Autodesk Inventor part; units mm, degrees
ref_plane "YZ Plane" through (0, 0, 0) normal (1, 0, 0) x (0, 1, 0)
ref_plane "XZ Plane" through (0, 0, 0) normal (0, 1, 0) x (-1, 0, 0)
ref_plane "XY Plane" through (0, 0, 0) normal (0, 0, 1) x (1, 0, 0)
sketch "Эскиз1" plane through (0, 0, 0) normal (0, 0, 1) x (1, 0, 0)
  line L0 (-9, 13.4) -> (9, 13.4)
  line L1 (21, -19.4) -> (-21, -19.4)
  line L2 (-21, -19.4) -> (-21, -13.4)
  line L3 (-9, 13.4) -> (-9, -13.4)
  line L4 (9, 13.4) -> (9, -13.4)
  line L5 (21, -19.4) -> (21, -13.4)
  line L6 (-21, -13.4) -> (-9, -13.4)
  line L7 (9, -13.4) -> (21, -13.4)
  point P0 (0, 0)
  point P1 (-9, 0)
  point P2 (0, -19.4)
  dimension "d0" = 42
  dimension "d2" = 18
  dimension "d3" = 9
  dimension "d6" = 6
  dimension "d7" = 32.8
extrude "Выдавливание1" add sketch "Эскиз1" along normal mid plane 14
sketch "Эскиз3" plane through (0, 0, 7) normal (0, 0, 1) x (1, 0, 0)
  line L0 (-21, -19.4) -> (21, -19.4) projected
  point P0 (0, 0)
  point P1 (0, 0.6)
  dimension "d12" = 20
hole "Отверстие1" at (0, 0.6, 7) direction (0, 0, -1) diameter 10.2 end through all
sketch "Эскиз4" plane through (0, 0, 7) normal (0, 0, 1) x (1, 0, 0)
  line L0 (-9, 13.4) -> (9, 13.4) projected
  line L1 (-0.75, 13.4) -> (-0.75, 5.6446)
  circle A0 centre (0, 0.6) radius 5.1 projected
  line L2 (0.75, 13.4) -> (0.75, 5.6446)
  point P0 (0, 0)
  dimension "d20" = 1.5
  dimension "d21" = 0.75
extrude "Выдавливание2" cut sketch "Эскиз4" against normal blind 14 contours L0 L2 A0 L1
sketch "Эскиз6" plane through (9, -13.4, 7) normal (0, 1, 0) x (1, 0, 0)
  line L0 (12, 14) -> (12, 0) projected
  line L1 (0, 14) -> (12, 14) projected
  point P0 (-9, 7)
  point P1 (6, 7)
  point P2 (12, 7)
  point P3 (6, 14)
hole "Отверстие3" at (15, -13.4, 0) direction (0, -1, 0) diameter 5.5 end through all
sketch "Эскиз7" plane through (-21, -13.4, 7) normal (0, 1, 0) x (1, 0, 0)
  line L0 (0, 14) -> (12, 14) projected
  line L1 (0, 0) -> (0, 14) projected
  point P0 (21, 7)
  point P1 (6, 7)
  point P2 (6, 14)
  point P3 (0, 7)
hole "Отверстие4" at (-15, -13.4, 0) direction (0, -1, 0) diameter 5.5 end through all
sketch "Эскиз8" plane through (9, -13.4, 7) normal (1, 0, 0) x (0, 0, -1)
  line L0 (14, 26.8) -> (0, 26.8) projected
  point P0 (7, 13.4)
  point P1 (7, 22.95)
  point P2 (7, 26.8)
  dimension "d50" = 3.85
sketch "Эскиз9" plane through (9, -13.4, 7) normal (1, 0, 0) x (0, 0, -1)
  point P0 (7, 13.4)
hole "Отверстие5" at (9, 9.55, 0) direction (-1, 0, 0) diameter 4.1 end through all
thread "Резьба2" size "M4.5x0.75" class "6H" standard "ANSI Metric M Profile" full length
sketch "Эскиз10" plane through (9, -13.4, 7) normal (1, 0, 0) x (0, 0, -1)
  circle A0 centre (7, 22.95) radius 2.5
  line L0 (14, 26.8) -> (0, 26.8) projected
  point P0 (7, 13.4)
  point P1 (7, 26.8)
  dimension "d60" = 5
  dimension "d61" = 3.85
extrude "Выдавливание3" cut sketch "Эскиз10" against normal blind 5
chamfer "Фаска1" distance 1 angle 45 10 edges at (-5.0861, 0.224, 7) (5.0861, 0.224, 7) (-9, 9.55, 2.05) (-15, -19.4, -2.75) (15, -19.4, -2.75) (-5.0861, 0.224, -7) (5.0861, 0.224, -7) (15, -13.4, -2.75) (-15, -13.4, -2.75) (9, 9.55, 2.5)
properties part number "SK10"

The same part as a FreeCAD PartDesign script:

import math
import FreeCAD as App
import Part
import Sketcher

V = App.Vector
Q = App.Units.Quantity


def edges_at(feature, points):
    """Names of the edges that pass closest to the given points."""
    edges = feature.Shape.Edges
    near = lambda p: min(range(len(edges)), key=lambda i: edges[i].distToShape(Part.Vertex(*p))[0])
    return sorted({f"Edge{near(p) + 1}" for p in points})


def add_polygon(sketch, points):
    """Adds a closed chain of lines whose ends are joined by coincident constraints."""
    first, n = sketch.GeometryCount, len(points)
    for a, b in zip(points, points[1:] + points[:1]):
        sketch.addGeometry(Part.LineSegment(App.Vector(*a, 0), App.Vector(*b, 0)), False)
    for i in range(n):
        sketch.addConstraint(Sketcher.Constraint("Coincident", first + i, 2, first + (i + 1) % n, 1))

doc = App.newDocument("Part")
params = doc.addObject("Spreadsheet::Sheet", "Params")
for row, (alias, value) in enumerate([
    ("sketch1_width", "18 mm"),
    ("sketch1_width2", "42 mm"),
    ("sketch1_height", "6 mm"),
    ("pad1_length", "14 mm"),
    ("sketch2_diameter", "10.2 mm"),
    ("hole_diameter", "10.2 mm"),
    ("sketch3_width", "1.5 mm"),
    ("sketch3_radius", "5.1 mm"),
    ("pocket1_length", "14 mm"),
    ("sketch4_diameter", "5.5 mm"),
    ("hole2_diameter", "5.5 mm"),
    ("sketch5_diameter", "5.5 mm"),
    ("hole3_diameter", "5.5 mm"),
    ("sketch6_diameter", "4.1 mm"),
    ("hole4_diameter", "4.1 mm"),
    ("sketch7_diameter", "5 mm"),
    ("pocket2_length", "5 mm"),
    ("chamfer_size", "1 mm"),
], start=1):
    params.set(f"A{row}", alias)
    params.set(f"B{row}", "=" + value)
    params.setAlias(f"B{row}", alias)

body = doc.addObject("PartDesign::Body", "Body")

sketch1 = body.newObject("Sketcher::SketchObject", "Sketch")
sketch1.AttachmentSupport = (doc.getObject("XY_Plane"), [""])
sketch1.MapMode = "FlatFace"
add_polygon(sketch1, [(9, 13.4), (-9, 13.4), (-9, -13.4), (-21, -13.4), (-21, -19.4), (21, -19.4), (21, -13.4), (9, -13.4)])
sketch1.addConstraint(Sketcher.Constraint("Horizontal", 0))
sketch1.addConstraint(Sketcher.Constraint("Vertical", 1))
sketch1.addConstraint(Sketcher.Constraint("Horizontal", 2))
sketch1.addConstraint(Sketcher.Constraint("Vertical", 3))
sketch1.addConstraint(Sketcher.Constraint("Horizontal", 4))
sketch1.addConstraint(Sketcher.Constraint("Vertical", 5))
sketch1.addConstraint(Sketcher.Constraint("Horizontal", 6))
sketch1.addConstraint(Sketcher.Constraint("Vertical", 7))
sketch1.addConstraint(Sketcher.Constraint("Symmetric", 0, 2, 6, 2, -1, 1))
sketch1.addConstraint(Sketcher.Constraint("Symmetric", 2, 2, 5, 2, -2))
sketch1.addConstraint(Sketcher.Constraint("DistanceX", 0, 2, 0, 1, Q("18 mm")))
sketch1.addConstraint(Sketcher.Constraint("DistanceX", 4, 1, 4, 2, Q("42 mm")))
sketch1.addConstraint(Sketcher.Constraint("DistanceY", 3, 2, 3, 1, Q("6 mm")))
sketch1.addConstraint(Sketcher.Constraint("DistanceY", 3, 2, 0, 2, Q("32.8 mm")))
sketch1.setExpression("Constraints[18]", "Params.sketch1_width")
sketch1.setExpression("Constraints[19]", "Params.sketch1_width2")
sketch1.setExpression("Constraints[20]", "Params.sketch1_height")
pad1 = body.newObject("PartDesign::Pad", "Pad")
pad1.Profile = sketch1
pad1.setExpression("Length", "Params.pad1_length")
pad1.Midplane = True

sketch2 = body.newObject("Sketcher::SketchObject", "Sketch001")
sketch2.AttachmentSupport = (doc.getObject("XY_Plane"), [""])
sketch2.MapMode = "FlatFace"
sketch2.AttachmentOffset = App.Placement(V(0, 0, 7), App.Rotation())
sketch2.addGeometry(Part.Circle(V(0, 0.6, 0), V(0, 0, 1), 5.1), False)
sketch2.addConstraint(Sketcher.Constraint("PointOnObject", 0, 3, -2))
sketch2.addConstraint(Sketcher.Constraint("Diameter", 0, Q("10.2 mm")))
sketch2.addConstraint(Sketcher.Constraint("DistanceY", -1, 1, 0, 3, Q("0.6 mm")))
sketch2.setExpression("Constraints[1]", "Params.sketch2_diameter")
doc.recompute()
hole = body.newObject("PartDesign::Hole", "Hole")
hole.Profile = sketch2
hole.ThreadType = "None"
hole.setExpression("Diameter", "Params.hole_diameter")
hole.DepthType = "ThroughAll"

sketch3 = body.newObject("Sketcher::SketchObject", "Sketch002")
sketch3.AttachmentSupport = (doc.getObject("XY_Plane"), [""])
sketch3.MapMode = "FlatFace"
sketch3.AttachmentOffset = App.Placement(V(0, 0, 7), App.Rotation())
sketch3.addGeometry(Part.LineSegment(V(0.75, 13.4, 0), V(-0.75, 13.4, 0)), False)
sketch3.addGeometry(Part.LineSegment(V(-0.75, 13.4, 0), V(-0.75, 5.6446, 0)), False)
sketch3.addGeometry(Part.ArcOfCircle(Part.Circle(V(0, 0.6, 0), V(0, 0, 1), 5.1), math.radians(81.543561), math.radians(98.456439)), False)
sketch3.addGeometry(Part.LineSegment(V(0.75, 5.6446, 0), V(0.75, 13.4, 0)), False)
sketch3.addConstraint(Sketcher.Constraint("Coincident", 0, 2, 1, 1))
sketch3.addConstraint(Sketcher.Constraint("Coincident", 1, 2, 2, 2))
sketch3.addConstraint(Sketcher.Constraint("Coincident", 2, 1, 3, 1))
sketch3.addConstraint(Sketcher.Constraint("Coincident", 3, 2, 0, 1))
sketch3.addConstraint(Sketcher.Constraint("Horizontal", 0))
sketch3.addConstraint(Sketcher.Constraint("Vertical", 1))
sketch3.addConstraint(Sketcher.Constraint("Vertical", 3))
sketch3.addConstraint(Sketcher.Constraint("Symmetric", 1, 2, 2, 1, -2))
sketch3.addConstraint(Sketcher.Constraint("DistanceX", 0, 2, 0, 1, Q("1.5 mm")))
sketch3.addConstraint(Sketcher.Constraint("Radius", 2, Q("5.1 mm")))
sketch3.addConstraint(Sketcher.Constraint("DistanceY", -1, 1, 2, 3, Q("0.6 mm")))
sketch3.addConstraint(Sketcher.Constraint("DistanceY", -1, 1, 0, 2, Q("13.4 mm")))
sketch3.setExpression("Constraints[8]", "Params.sketch3_width")
sketch3.setExpression("Constraints[9]", "Params.sketch3_radius")
pocket1 = body.newObject("PartDesign::Pocket", "Pocket")
pocket1.Profile = sketch3
pocket1.setExpression("Length", "Params.pocket1_length")

sketch4 = body.newObject("Sketcher::SketchObject", "Sketch003")
sketch4.AttachmentSupport = (doc.getObject("XZ_Plane"), [""])
sketch4.MapMode = "FlatFace"
sketch4.AttachmentOffset = App.Placement(V(0, 0, 13.4), App.Rotation())
sketch4.addGeometry(Part.Circle(V(15, 0, 0), V(0, 0, 1), 2.75), False)
sketch4.addConstraint(Sketcher.Constraint("PointOnObject", 0, 3, -1))
sketch4.addConstraint(Sketcher.Constraint("Diameter", 0, Q("5.5 mm")))
sketch4.addConstraint(Sketcher.Constraint("DistanceX", -1, 1, 0, 3, Q("15 mm")))
sketch4.setExpression("Constraints[1]", "Params.sketch4_diameter")
doc.recompute()
hole2 = body.newObject("PartDesign::Hole", "Hole001")
hole2.Profile = sketch4
hole2.ThreadType = "None"
hole2.setExpression("Diameter", "Params.hole2_diameter")
hole2.DepthType = "ThroughAll"
hole2.Reversed = True

sketch5 = body.newObject("Sketcher::SketchObject", "Sketch004")
sketch5.AttachmentSupport = (doc.getObject("XZ_Plane"), [""])
sketch5.MapMode = "FlatFace"
sketch5.AttachmentOffset = App.Placement(V(0, 0, 13.4), App.Rotation())
sketch5.addGeometry(Part.Circle(V(-15, 0, 0), V(0, 0, 1), 2.75), False)
sketch5.addConstraint(Sketcher.Constraint("PointOnObject", 0, 3, -1))
sketch5.addConstraint(Sketcher.Constraint("Diameter", 0, Q("5.5 mm")))
sketch5.addConstraint(Sketcher.Constraint("DistanceX", 0, 3, -1, 1, Q("15 mm")))
sketch5.setExpression("Constraints[1]", "Params.sketch5_diameter")
doc.recompute()
hole3 = body.newObject("PartDesign::Hole", "Hole002")
hole3.Profile = sketch5
hole3.ThreadType = "None"
hole3.setExpression("Diameter", "Params.hole3_diameter")
hole3.DepthType = "ThroughAll"
hole3.Reversed = True

sketch6 = body.newObject("Sketcher::SketchObject", "Sketch005")
sketch6.AttachmentSupport = (doc.getObject("YZ_Plane"), [""])
sketch6.MapMode = "FlatFace"
sketch6.AttachmentOffset = App.Placement(V(0, 0, 9), App.Rotation())
sketch6.addGeometry(Part.Circle(V(9.55, 0, 0), V(0, 0, 1), 2.05), False)
sketch6.addConstraint(Sketcher.Constraint("PointOnObject", 0, 3, -1))
sketch6.addConstraint(Sketcher.Constraint("Diameter", 0, Q("4.1 mm")))
sketch6.addConstraint(Sketcher.Constraint("DistanceX", -1, 1, 0, 3, Q("9.55 mm")))
sketch6.setExpression("Constraints[1]", "Params.sketch6_diameter")
doc.recompute()
hole4 = body.newObject("PartDesign::Hole", "Hole003")
hole4.Profile = sketch6
hole4.ThreadType = "None"
hole4.setExpression("Diameter", "Params.hole4_diameter")
hole4.DepthType = "ThroughAll"

sketch7 = body.newObject("Sketcher::SketchObject", "Sketch006")
sketch7.AttachmentSupport = (doc.getObject("YZ_Plane"), [""])
sketch7.MapMode = "FlatFace"
sketch7.AttachmentOffset = App.Placement(V(0, 0, 9), App.Rotation())
sketch7.addGeometry(Part.Circle(V(9.55, 0, 0), V(0, 0, 1), 2.5), False)
sketch7.addConstraint(Sketcher.Constraint("PointOnObject", 0, 3, -1))
sketch7.addConstraint(Sketcher.Constraint("Diameter", 0, Q("5 mm")))
sketch7.addConstraint(Sketcher.Constraint("DistanceX", -1, 1, 0, 3, Q("9.55 mm")))
sketch7.setExpression("Constraints[1]", "Params.sketch7_diameter")
pocket2 = body.newObject("PartDesign::Pocket", "Pocket001")
pocket2.Profile = sketch7
pocket2.setExpression("Length", "Params.pocket2_length")
doc.recompute()

chamfer = body.newObject("PartDesign::Chamfer", "Chamfer")
chamfer.Base = (pocket2, edges_at(pocket2, [
    (-5.086, 0.224, 7),
    (5.086, 0.224, 7),
    (-9, 9.55, 2.05),
    (-15, -19.4, -2.75),
    (15, -19.4, -2.75),
    (-5.086, 0.224, -7),
    (5.086, 0.224, -7),
    (15, -13.4, -2.75),
    (-15, -13.4, -2.75),
    (9, 9.55, 2.5),
]))
chamfer.setExpression("Size", "Params.chamfer_size")

doc.recompute()
